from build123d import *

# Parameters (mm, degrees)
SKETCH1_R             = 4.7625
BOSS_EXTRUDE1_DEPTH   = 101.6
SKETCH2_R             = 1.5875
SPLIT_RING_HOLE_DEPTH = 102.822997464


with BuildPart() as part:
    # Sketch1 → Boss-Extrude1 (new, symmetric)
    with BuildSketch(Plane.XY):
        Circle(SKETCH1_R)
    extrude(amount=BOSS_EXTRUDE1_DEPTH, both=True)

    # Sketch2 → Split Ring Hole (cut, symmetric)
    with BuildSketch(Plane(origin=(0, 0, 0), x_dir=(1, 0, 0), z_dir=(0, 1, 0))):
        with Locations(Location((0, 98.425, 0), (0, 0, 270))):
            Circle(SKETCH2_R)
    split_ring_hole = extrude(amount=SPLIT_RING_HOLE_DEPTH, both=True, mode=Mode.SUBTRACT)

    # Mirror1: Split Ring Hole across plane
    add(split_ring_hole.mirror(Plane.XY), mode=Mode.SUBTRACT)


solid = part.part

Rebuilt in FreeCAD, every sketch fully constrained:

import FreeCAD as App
import Part
import Sketcher
from FreeCAD import Vector
Q = App.Units.Quantity

doc = App.newDocument("Part")
body = doc.addObject("PartDesign::Body", "Body")

sketch1 = body.newObject("Sketcher::SketchObject", "Sketch")
sketch1.AttachmentSupport = (doc.getObject("XY_Plane"), [""])
sketch1.MapMode = "FlatFace"
sketch1.addGeometry(Part.Circle(Vector(0, 0, 0), Vector(0, 0, 1), 4.8), False)
sketch1.addConstraint([
    Sketcher.Constraint("Coincident", 0, 3, -1, 1),
    Sketcher.Constraint("Diameter", 0, Q("0.375 in")),
])
pad1 = body.newObject("PartDesign::Pad", "Pad")
pad1.Profile = sketch1
pad1.Length = Q("8 in")
pad1.Midplane = True

sketch2 = body.newObject("Sketcher::SketchObject", "Sketch001")
sketch2.AttachmentSupport = (doc.getObject("XZ_Plane"), [""])
sketch2.MapMode = "FlatFace"
sketch2.addGeometry(Part.Circle(Vector(0, -98.4, 0), Vector(0, 0, 1), 1.6), False)
sketch2.addConstraint([
    Sketcher.Constraint("PointOnObject", 0, 3, -2),
    Sketcher.Constraint("Diameter", 0, Q("0.125 in")),
    Sketcher.Constraint("DistanceY", 0, 3, -1, 1, Q("3.875 in")),
])
pocket1 = body.newObject("PartDesign::Pocket", "Pocket")
pocket1.Profile = sketch2
pocket1.Length = 205.645995
pocket1.Midplane = True
doc.recompute()

mirrored = body.newObject("PartDesign::Mirrored", "Mirrored")
mirrored.Originals = [pocket1]
mirrored.MirrorPlane = (doc.getObject("XY_Plane"), [""])
body.Tip = mirrored

doc.recompute()
